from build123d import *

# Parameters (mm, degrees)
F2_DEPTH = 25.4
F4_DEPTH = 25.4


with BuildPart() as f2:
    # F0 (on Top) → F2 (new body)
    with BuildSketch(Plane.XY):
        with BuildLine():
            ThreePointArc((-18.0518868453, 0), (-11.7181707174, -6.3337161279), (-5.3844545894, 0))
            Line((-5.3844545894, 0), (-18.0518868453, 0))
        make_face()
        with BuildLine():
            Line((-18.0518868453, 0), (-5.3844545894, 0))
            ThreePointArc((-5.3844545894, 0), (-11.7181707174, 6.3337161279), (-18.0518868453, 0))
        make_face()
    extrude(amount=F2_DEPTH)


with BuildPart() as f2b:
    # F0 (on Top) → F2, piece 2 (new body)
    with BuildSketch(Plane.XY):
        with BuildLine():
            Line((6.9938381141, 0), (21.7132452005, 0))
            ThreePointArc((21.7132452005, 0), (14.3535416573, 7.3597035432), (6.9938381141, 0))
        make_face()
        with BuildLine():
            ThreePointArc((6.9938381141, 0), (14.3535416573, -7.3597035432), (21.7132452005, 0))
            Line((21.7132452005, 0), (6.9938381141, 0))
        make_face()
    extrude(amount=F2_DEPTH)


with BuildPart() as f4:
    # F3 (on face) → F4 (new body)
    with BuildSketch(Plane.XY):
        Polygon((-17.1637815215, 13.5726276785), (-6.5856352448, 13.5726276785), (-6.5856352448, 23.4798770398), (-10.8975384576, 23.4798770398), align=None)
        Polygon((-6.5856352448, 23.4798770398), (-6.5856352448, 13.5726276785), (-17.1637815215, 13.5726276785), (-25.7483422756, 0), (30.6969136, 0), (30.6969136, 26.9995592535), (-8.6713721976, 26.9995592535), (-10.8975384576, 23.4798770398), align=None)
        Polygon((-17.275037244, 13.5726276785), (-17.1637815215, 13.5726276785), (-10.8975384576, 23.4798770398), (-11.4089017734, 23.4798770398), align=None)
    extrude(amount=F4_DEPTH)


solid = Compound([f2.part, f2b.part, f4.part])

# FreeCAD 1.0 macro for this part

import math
import FreeCAD as App
import Part
import Sketcher
Q = App.Units.Quantity


def add_polygon(sketch, points):
    """Adds a closed chain of lines whose ends are joined by coincident constraints."""
    first, n = sketch.GeometryCount, len(points)
    for a, b in zip(points, points[1:] + points[:1]):
        sketch.addGeometry(Part.LineSegment(App.Vector(*a, 0), App.Vector(*b, 0)), False)
    for i in range(n):
        sketch.addConstraint(Sketcher.Constraint("Coincident", first + i, 2, first + (i + 1) % n, 1))

doc = App.newDocument("Part")
body = doc.addObject("PartDesign::Body", "Body")

# Sketch on XY plane
sketch1 = doc.addObject("Sketcher::SketchObject", "Sketch")
body.addObject(sketch1)
sketch1.AttachmentSupport = (doc.XY_Plane, [""])
sketch1.MapMode = "FlatFace"
sketch1.addGeometry([
    Part.ArcOfCircle(Part.Circle(App.Vector(-11.718171, 0, 0), App.Vector(0, 0, 1), 6.333716), math.radians(180), math.radians(360)),
    Part.ArcOfCircle(Part.Circle(App.Vector(-11.718171, 0, 0), App.Vector(0, 0, 1), 6.333716), math.radians(0), math.radians(180)),
], False)
sketch1.addConstraint([
    Sketcher.Constraint("Tangent", 0, 1, 1, 2),
    Sketcher.Constraint("Coincident", 1, 1, 0, 2),
    Sketcher.Constraint("PointOnObject", 0, 3, -1),
    Sketcher.Constraint("PointOnObject", 0, 1, -1),
    Sketcher.Constraint("PointOnObject", 1, 1, -1),
    Sketcher.Constraint("Radius", 0, 6.333716),
    Sketcher.Constraint("DistanceX", 0, 3, -1, 1, 11.718171),
])
pad1 = doc.addObject("PartDesign::Pad", "Pad")
body.addObject(pad1)
pad1.Profile = sketch1
pad1.Length = Q("1 in")
body2 = doc.addObject("PartDesign::Body", "Body001")

# Sketch on XY plane
sketch2 = doc.addObject("Sketcher::SketchObject", "Sketch001")
body2.addObject(sketch2)
sketch2.AttachmentSupport = (doc.getObject("XY_Plane001"), [""])
sketch2.MapMode = "FlatFace"
sketch2.addGeometry(Part.Circle(App.Vector(14.353542, 0, 0), App.Vector(0, 0, 1), 7.359704), False)
sketch2.addConstraint([
    Sketcher.Constraint("PointOnObject", 0, 3, -1),
    Sketcher.Constraint("Diameter", 0, 14.719407),
    Sketcher.Constraint("DistanceX", -1, 1, 0, 3, Q("0.5651001 in")),
])
pad2 = doc.addObject("PartDesign::Pad", "Pad001")
body2.addObject(pad2)
pad2.Profile = sketch2
pad2.Length = Q("1 in")
body3 = doc.addObject("PartDesign::Body", "Body002")

# Sketch on XY plane
sketch3 = doc.addObject("Sketcher::SketchObject", "Sketch002")
body3.addObject(sketch3)
sketch3.AttachmentSupport = (doc.getObject("XY_Plane002"), [""])
sketch3.MapMode = "FlatFace"
add_polygon(sketch3, [(-17.163782, 13.572628), (-25.748342, 0), (30.696914, 0), (30.696914, 26.999559), (-8.671372, 26.999559), (-10.897538, 23.479877), (-11.408902, 23.479877), (-17.275037, 13.572628)])  # lines 0-7
sketch3.addConstraint([
    Sketcher.Constraint("Horizontal", 1),
    Sketcher.Constraint("Vertical", 2),
    Sketcher.Constraint("Horizontal", 3),
    Sketcher.Constraint("Horizontal", 5),
    Sketcher.Constraint("Horizontal", 7),
    Sketcher.Constraint("PointOnObject", 0, 2, -1),
    Sketcher.Constraint("Parallel", 0, 4),
    Sketcher.Constraint("Angle", 6, Q("-120.630003 deg")),
    Sketcher.Constraint("DistanceY", 2, 1, 2, 2, 26.999559),
    Sketcher.Constraint("DistanceX", 5, 2, -1, 1, 11.408902),
    Sketcher.Constraint("DistanceX", 6, 2, 4, 2, 6.377499),
    Sketcher.Constraint("Distance", 4, 4.16461),
    Sketcher.Constraint("DistanceX", 1, 1, 1, 2, 56.445256),
    Sketcher.Constraint("DistanceX", 3, 2, 3, 1, 39.368286),
    Sketcher.Constraint("DistanceX", 5, 2, 5, 1, 0.511363),
    Sketcher.Constraint("DistanceX", 7, 1, 7, 2, 0.111256),
])
pad3 = doc.addObject("PartDesign::Pad", "Pad002")
body3.addObject(pad3)
pad3.Profile = sketch3
pad3.Length = Q("1 in")

doc.recompute()
